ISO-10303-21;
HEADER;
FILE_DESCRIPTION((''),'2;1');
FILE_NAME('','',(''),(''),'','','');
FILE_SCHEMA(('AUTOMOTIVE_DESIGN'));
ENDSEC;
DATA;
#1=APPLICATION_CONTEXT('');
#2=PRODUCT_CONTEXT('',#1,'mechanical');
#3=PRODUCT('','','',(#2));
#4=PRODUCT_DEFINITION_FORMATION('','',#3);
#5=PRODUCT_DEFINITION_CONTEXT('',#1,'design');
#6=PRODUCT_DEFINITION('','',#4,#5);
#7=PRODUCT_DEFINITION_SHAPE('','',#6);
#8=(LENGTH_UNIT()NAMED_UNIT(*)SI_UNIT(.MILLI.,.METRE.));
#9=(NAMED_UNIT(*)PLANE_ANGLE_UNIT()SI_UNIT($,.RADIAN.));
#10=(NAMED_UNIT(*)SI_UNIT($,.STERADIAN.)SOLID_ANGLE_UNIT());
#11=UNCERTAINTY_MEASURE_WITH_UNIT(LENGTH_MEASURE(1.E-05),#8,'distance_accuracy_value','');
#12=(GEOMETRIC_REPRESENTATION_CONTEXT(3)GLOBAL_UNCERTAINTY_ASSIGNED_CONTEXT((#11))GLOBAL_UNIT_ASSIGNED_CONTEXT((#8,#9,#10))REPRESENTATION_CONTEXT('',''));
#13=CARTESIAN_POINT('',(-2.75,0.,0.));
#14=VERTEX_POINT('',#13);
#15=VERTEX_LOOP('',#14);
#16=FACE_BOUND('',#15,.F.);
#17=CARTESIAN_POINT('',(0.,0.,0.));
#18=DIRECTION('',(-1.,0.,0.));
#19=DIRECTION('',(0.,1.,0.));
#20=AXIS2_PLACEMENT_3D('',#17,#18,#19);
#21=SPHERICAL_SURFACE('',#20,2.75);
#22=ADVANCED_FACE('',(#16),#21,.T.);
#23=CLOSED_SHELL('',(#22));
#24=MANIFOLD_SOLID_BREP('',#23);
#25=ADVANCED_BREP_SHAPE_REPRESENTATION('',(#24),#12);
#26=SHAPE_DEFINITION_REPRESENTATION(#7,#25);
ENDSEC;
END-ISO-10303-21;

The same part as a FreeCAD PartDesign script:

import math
import FreeCAD as App
import Part
import Sketcher
from FreeCAD import Vector
Q = App.Units.Quantity

doc = App.newDocument("Part")
body = doc.addObject("PartDesign::Body", "Body")

sketch1 = body.newObject("Sketcher::SketchObject", "Sketch")
sketch1.AttachmentSupport = (doc.getObject("XY_Plane"), [""])
sketch1.MapMode = "FlatFace"
sketch1.addGeometry(Part.LineSegment(Vector(-2.8, 0, 0), Vector(2.8, 0, 0)), False)
sketch1.addGeometry(Part.ArcOfCircle(Part.Circle(Vector(0, 0, 0), Vector(0, 0, 1), 2.8), math.radians(0), math.radians(180)), False)
sketch1.addConstraint(Sketcher.Constraint("Coincident", 0, 1, 1, 2))
sketch1.addConstraint(Sketcher.Constraint("Coincident", 1, 1, 0, 2))
sketch1.addConstraint(Sketcher.Constraint("Horizontal", 0))
sketch1.addConstraint(Sketcher.Constraint("Coincident", 1, 3, -1, 1))
sketch1.addConstraint(Sketcher.Constraint("PointOnObject", 0, 1, -1))
sketch1.addConstraint(Sketcher.Constraint("Radius", 1, Q("2.75 mm")))
revolution = body.newObject("PartDesign::Revolution", "Revolution")
revolution.Profile = sketch1
revolution.ReferenceAxis = (sketch1, ["H_Axis"])
revolution.Angle = 360

doc.recompute()
